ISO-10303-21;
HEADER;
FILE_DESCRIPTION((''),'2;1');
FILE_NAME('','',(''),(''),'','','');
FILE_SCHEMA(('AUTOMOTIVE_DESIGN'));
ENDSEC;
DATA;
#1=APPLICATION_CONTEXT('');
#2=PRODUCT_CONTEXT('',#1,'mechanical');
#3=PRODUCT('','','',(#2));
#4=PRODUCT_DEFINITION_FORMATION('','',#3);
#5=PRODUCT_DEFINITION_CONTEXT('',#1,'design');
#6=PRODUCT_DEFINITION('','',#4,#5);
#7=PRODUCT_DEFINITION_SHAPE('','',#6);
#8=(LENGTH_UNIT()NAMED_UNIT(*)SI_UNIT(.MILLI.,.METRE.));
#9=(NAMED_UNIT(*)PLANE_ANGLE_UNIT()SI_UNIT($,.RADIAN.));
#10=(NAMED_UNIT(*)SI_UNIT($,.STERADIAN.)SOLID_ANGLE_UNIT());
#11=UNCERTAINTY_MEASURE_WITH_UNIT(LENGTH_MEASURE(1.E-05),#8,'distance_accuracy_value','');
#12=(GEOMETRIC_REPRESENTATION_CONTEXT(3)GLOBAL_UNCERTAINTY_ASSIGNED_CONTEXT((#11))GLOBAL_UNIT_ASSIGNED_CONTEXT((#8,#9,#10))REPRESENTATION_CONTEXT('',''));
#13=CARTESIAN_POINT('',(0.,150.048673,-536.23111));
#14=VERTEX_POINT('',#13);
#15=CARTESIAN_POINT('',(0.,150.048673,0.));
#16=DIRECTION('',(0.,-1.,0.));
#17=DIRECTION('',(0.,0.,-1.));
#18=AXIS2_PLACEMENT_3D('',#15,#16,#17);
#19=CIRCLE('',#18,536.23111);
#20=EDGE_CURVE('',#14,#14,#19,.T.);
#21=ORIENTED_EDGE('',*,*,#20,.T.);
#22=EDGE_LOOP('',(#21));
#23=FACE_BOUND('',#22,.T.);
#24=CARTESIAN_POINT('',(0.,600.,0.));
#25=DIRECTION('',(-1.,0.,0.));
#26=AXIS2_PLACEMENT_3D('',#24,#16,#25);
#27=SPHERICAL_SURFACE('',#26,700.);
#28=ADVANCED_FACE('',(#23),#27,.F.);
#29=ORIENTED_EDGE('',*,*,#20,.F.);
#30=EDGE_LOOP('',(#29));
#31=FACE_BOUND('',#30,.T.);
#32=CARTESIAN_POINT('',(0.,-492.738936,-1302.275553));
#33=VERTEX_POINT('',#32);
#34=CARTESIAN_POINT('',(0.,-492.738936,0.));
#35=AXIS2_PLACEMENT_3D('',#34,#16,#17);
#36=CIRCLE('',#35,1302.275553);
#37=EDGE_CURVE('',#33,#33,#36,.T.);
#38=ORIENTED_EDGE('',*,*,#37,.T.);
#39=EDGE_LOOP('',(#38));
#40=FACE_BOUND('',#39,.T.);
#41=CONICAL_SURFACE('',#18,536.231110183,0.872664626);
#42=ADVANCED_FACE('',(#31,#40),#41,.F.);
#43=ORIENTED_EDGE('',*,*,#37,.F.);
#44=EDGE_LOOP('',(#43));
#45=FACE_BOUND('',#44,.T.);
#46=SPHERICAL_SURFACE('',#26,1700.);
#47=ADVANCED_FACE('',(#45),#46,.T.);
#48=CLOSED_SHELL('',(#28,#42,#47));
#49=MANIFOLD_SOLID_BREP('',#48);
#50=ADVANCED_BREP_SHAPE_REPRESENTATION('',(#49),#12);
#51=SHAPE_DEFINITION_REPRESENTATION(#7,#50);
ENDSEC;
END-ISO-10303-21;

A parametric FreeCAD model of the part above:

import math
import FreeCAD as App
import Part
import Sketcher
from FreeCAD import Vector
Q = App.Units.Quantity

doc = App.newDocument("Part")
body = doc.addObject("PartDesign::Body", "Body")

# Sketch on XY plane
sketch1 = body.newObject("Sketcher::SketchObject", "Sketch")
sketch1.AttachmentSupport = (doc.getObject("XY_Plane"), [""])
sketch1.MapMode = "FlatFace"
sketch1.addGeometry(Part.LineSegment(Vector(0, 2300, 0), Vector(0, 1300, 0)), False)
sketch1.addGeometry(Part.ArcOfCircle(Part.Circle(Vector(0, 600, 0), Vector(0, 0, 1), 700), math.radians(-40), math.radians(90)), False)
sketch1.addGeometry(Part.LineSegment(Vector(536.23111, 150.048673, 0), Vector(1302.275553, -492.738936, 0)), False)
sketch1.addGeometry(Part.ArcOfCircle(Part.Circle(Vector(0, 600, 0), Vector(0, 0, 1), 1700), math.radians(-40), math.radians(90)), False)
sketch1.addConstraint(Sketcher.Constraint("Coincident", 0, 2, 1, 2))
sketch1.addConstraint(Sketcher.Constraint("Coincident", 1, 1, 2, 1))
sketch1.addConstraint(Sketcher.Constraint("Coincident", 2, 2, 3, 1))
sketch1.addConstraint(Sketcher.Constraint("Coincident", 3, 2, 0, 1))
sketch1.addConstraint(Sketcher.Constraint("Vertical", 0))
sketch1.addConstraint(Sketcher.Constraint("Coincident", 3, 3, 1, 3))
sketch1.addConstraint(Sketcher.Constraint("PointOnObject", 1, 3, -2))
sketch1.addConstraint(Sketcher.Constraint("PointOnObject", 0, 2, -2))
sketch1.addConstraint(Sketcher.Constraint("Radius", 1, Q("700 mm")))
sketch1.addConstraint(Sketcher.Constraint("Radius", 3, Q("1700 mm")))
sketch1.addConstraint(Sketcher.Constraint("Angle", 2, Q("-40 deg")))
sketch1.addConstraint(Sketcher.Constraint("DistanceY", -1, 1, 1, 3, Q("600 mm")))
sketch1.addConstraint(Sketcher.Constraint("DistanceX", -1, 1, 2, 2, Q("1302.275553 mm")))
revolution = body.newObject("PartDesign::Revolution", "Revolution")
revolution.Profile = sketch1
revolution.ReferenceAxis = (sketch1, ["V_Axis"])
revolution.Angle = 360

doc.recompute()
